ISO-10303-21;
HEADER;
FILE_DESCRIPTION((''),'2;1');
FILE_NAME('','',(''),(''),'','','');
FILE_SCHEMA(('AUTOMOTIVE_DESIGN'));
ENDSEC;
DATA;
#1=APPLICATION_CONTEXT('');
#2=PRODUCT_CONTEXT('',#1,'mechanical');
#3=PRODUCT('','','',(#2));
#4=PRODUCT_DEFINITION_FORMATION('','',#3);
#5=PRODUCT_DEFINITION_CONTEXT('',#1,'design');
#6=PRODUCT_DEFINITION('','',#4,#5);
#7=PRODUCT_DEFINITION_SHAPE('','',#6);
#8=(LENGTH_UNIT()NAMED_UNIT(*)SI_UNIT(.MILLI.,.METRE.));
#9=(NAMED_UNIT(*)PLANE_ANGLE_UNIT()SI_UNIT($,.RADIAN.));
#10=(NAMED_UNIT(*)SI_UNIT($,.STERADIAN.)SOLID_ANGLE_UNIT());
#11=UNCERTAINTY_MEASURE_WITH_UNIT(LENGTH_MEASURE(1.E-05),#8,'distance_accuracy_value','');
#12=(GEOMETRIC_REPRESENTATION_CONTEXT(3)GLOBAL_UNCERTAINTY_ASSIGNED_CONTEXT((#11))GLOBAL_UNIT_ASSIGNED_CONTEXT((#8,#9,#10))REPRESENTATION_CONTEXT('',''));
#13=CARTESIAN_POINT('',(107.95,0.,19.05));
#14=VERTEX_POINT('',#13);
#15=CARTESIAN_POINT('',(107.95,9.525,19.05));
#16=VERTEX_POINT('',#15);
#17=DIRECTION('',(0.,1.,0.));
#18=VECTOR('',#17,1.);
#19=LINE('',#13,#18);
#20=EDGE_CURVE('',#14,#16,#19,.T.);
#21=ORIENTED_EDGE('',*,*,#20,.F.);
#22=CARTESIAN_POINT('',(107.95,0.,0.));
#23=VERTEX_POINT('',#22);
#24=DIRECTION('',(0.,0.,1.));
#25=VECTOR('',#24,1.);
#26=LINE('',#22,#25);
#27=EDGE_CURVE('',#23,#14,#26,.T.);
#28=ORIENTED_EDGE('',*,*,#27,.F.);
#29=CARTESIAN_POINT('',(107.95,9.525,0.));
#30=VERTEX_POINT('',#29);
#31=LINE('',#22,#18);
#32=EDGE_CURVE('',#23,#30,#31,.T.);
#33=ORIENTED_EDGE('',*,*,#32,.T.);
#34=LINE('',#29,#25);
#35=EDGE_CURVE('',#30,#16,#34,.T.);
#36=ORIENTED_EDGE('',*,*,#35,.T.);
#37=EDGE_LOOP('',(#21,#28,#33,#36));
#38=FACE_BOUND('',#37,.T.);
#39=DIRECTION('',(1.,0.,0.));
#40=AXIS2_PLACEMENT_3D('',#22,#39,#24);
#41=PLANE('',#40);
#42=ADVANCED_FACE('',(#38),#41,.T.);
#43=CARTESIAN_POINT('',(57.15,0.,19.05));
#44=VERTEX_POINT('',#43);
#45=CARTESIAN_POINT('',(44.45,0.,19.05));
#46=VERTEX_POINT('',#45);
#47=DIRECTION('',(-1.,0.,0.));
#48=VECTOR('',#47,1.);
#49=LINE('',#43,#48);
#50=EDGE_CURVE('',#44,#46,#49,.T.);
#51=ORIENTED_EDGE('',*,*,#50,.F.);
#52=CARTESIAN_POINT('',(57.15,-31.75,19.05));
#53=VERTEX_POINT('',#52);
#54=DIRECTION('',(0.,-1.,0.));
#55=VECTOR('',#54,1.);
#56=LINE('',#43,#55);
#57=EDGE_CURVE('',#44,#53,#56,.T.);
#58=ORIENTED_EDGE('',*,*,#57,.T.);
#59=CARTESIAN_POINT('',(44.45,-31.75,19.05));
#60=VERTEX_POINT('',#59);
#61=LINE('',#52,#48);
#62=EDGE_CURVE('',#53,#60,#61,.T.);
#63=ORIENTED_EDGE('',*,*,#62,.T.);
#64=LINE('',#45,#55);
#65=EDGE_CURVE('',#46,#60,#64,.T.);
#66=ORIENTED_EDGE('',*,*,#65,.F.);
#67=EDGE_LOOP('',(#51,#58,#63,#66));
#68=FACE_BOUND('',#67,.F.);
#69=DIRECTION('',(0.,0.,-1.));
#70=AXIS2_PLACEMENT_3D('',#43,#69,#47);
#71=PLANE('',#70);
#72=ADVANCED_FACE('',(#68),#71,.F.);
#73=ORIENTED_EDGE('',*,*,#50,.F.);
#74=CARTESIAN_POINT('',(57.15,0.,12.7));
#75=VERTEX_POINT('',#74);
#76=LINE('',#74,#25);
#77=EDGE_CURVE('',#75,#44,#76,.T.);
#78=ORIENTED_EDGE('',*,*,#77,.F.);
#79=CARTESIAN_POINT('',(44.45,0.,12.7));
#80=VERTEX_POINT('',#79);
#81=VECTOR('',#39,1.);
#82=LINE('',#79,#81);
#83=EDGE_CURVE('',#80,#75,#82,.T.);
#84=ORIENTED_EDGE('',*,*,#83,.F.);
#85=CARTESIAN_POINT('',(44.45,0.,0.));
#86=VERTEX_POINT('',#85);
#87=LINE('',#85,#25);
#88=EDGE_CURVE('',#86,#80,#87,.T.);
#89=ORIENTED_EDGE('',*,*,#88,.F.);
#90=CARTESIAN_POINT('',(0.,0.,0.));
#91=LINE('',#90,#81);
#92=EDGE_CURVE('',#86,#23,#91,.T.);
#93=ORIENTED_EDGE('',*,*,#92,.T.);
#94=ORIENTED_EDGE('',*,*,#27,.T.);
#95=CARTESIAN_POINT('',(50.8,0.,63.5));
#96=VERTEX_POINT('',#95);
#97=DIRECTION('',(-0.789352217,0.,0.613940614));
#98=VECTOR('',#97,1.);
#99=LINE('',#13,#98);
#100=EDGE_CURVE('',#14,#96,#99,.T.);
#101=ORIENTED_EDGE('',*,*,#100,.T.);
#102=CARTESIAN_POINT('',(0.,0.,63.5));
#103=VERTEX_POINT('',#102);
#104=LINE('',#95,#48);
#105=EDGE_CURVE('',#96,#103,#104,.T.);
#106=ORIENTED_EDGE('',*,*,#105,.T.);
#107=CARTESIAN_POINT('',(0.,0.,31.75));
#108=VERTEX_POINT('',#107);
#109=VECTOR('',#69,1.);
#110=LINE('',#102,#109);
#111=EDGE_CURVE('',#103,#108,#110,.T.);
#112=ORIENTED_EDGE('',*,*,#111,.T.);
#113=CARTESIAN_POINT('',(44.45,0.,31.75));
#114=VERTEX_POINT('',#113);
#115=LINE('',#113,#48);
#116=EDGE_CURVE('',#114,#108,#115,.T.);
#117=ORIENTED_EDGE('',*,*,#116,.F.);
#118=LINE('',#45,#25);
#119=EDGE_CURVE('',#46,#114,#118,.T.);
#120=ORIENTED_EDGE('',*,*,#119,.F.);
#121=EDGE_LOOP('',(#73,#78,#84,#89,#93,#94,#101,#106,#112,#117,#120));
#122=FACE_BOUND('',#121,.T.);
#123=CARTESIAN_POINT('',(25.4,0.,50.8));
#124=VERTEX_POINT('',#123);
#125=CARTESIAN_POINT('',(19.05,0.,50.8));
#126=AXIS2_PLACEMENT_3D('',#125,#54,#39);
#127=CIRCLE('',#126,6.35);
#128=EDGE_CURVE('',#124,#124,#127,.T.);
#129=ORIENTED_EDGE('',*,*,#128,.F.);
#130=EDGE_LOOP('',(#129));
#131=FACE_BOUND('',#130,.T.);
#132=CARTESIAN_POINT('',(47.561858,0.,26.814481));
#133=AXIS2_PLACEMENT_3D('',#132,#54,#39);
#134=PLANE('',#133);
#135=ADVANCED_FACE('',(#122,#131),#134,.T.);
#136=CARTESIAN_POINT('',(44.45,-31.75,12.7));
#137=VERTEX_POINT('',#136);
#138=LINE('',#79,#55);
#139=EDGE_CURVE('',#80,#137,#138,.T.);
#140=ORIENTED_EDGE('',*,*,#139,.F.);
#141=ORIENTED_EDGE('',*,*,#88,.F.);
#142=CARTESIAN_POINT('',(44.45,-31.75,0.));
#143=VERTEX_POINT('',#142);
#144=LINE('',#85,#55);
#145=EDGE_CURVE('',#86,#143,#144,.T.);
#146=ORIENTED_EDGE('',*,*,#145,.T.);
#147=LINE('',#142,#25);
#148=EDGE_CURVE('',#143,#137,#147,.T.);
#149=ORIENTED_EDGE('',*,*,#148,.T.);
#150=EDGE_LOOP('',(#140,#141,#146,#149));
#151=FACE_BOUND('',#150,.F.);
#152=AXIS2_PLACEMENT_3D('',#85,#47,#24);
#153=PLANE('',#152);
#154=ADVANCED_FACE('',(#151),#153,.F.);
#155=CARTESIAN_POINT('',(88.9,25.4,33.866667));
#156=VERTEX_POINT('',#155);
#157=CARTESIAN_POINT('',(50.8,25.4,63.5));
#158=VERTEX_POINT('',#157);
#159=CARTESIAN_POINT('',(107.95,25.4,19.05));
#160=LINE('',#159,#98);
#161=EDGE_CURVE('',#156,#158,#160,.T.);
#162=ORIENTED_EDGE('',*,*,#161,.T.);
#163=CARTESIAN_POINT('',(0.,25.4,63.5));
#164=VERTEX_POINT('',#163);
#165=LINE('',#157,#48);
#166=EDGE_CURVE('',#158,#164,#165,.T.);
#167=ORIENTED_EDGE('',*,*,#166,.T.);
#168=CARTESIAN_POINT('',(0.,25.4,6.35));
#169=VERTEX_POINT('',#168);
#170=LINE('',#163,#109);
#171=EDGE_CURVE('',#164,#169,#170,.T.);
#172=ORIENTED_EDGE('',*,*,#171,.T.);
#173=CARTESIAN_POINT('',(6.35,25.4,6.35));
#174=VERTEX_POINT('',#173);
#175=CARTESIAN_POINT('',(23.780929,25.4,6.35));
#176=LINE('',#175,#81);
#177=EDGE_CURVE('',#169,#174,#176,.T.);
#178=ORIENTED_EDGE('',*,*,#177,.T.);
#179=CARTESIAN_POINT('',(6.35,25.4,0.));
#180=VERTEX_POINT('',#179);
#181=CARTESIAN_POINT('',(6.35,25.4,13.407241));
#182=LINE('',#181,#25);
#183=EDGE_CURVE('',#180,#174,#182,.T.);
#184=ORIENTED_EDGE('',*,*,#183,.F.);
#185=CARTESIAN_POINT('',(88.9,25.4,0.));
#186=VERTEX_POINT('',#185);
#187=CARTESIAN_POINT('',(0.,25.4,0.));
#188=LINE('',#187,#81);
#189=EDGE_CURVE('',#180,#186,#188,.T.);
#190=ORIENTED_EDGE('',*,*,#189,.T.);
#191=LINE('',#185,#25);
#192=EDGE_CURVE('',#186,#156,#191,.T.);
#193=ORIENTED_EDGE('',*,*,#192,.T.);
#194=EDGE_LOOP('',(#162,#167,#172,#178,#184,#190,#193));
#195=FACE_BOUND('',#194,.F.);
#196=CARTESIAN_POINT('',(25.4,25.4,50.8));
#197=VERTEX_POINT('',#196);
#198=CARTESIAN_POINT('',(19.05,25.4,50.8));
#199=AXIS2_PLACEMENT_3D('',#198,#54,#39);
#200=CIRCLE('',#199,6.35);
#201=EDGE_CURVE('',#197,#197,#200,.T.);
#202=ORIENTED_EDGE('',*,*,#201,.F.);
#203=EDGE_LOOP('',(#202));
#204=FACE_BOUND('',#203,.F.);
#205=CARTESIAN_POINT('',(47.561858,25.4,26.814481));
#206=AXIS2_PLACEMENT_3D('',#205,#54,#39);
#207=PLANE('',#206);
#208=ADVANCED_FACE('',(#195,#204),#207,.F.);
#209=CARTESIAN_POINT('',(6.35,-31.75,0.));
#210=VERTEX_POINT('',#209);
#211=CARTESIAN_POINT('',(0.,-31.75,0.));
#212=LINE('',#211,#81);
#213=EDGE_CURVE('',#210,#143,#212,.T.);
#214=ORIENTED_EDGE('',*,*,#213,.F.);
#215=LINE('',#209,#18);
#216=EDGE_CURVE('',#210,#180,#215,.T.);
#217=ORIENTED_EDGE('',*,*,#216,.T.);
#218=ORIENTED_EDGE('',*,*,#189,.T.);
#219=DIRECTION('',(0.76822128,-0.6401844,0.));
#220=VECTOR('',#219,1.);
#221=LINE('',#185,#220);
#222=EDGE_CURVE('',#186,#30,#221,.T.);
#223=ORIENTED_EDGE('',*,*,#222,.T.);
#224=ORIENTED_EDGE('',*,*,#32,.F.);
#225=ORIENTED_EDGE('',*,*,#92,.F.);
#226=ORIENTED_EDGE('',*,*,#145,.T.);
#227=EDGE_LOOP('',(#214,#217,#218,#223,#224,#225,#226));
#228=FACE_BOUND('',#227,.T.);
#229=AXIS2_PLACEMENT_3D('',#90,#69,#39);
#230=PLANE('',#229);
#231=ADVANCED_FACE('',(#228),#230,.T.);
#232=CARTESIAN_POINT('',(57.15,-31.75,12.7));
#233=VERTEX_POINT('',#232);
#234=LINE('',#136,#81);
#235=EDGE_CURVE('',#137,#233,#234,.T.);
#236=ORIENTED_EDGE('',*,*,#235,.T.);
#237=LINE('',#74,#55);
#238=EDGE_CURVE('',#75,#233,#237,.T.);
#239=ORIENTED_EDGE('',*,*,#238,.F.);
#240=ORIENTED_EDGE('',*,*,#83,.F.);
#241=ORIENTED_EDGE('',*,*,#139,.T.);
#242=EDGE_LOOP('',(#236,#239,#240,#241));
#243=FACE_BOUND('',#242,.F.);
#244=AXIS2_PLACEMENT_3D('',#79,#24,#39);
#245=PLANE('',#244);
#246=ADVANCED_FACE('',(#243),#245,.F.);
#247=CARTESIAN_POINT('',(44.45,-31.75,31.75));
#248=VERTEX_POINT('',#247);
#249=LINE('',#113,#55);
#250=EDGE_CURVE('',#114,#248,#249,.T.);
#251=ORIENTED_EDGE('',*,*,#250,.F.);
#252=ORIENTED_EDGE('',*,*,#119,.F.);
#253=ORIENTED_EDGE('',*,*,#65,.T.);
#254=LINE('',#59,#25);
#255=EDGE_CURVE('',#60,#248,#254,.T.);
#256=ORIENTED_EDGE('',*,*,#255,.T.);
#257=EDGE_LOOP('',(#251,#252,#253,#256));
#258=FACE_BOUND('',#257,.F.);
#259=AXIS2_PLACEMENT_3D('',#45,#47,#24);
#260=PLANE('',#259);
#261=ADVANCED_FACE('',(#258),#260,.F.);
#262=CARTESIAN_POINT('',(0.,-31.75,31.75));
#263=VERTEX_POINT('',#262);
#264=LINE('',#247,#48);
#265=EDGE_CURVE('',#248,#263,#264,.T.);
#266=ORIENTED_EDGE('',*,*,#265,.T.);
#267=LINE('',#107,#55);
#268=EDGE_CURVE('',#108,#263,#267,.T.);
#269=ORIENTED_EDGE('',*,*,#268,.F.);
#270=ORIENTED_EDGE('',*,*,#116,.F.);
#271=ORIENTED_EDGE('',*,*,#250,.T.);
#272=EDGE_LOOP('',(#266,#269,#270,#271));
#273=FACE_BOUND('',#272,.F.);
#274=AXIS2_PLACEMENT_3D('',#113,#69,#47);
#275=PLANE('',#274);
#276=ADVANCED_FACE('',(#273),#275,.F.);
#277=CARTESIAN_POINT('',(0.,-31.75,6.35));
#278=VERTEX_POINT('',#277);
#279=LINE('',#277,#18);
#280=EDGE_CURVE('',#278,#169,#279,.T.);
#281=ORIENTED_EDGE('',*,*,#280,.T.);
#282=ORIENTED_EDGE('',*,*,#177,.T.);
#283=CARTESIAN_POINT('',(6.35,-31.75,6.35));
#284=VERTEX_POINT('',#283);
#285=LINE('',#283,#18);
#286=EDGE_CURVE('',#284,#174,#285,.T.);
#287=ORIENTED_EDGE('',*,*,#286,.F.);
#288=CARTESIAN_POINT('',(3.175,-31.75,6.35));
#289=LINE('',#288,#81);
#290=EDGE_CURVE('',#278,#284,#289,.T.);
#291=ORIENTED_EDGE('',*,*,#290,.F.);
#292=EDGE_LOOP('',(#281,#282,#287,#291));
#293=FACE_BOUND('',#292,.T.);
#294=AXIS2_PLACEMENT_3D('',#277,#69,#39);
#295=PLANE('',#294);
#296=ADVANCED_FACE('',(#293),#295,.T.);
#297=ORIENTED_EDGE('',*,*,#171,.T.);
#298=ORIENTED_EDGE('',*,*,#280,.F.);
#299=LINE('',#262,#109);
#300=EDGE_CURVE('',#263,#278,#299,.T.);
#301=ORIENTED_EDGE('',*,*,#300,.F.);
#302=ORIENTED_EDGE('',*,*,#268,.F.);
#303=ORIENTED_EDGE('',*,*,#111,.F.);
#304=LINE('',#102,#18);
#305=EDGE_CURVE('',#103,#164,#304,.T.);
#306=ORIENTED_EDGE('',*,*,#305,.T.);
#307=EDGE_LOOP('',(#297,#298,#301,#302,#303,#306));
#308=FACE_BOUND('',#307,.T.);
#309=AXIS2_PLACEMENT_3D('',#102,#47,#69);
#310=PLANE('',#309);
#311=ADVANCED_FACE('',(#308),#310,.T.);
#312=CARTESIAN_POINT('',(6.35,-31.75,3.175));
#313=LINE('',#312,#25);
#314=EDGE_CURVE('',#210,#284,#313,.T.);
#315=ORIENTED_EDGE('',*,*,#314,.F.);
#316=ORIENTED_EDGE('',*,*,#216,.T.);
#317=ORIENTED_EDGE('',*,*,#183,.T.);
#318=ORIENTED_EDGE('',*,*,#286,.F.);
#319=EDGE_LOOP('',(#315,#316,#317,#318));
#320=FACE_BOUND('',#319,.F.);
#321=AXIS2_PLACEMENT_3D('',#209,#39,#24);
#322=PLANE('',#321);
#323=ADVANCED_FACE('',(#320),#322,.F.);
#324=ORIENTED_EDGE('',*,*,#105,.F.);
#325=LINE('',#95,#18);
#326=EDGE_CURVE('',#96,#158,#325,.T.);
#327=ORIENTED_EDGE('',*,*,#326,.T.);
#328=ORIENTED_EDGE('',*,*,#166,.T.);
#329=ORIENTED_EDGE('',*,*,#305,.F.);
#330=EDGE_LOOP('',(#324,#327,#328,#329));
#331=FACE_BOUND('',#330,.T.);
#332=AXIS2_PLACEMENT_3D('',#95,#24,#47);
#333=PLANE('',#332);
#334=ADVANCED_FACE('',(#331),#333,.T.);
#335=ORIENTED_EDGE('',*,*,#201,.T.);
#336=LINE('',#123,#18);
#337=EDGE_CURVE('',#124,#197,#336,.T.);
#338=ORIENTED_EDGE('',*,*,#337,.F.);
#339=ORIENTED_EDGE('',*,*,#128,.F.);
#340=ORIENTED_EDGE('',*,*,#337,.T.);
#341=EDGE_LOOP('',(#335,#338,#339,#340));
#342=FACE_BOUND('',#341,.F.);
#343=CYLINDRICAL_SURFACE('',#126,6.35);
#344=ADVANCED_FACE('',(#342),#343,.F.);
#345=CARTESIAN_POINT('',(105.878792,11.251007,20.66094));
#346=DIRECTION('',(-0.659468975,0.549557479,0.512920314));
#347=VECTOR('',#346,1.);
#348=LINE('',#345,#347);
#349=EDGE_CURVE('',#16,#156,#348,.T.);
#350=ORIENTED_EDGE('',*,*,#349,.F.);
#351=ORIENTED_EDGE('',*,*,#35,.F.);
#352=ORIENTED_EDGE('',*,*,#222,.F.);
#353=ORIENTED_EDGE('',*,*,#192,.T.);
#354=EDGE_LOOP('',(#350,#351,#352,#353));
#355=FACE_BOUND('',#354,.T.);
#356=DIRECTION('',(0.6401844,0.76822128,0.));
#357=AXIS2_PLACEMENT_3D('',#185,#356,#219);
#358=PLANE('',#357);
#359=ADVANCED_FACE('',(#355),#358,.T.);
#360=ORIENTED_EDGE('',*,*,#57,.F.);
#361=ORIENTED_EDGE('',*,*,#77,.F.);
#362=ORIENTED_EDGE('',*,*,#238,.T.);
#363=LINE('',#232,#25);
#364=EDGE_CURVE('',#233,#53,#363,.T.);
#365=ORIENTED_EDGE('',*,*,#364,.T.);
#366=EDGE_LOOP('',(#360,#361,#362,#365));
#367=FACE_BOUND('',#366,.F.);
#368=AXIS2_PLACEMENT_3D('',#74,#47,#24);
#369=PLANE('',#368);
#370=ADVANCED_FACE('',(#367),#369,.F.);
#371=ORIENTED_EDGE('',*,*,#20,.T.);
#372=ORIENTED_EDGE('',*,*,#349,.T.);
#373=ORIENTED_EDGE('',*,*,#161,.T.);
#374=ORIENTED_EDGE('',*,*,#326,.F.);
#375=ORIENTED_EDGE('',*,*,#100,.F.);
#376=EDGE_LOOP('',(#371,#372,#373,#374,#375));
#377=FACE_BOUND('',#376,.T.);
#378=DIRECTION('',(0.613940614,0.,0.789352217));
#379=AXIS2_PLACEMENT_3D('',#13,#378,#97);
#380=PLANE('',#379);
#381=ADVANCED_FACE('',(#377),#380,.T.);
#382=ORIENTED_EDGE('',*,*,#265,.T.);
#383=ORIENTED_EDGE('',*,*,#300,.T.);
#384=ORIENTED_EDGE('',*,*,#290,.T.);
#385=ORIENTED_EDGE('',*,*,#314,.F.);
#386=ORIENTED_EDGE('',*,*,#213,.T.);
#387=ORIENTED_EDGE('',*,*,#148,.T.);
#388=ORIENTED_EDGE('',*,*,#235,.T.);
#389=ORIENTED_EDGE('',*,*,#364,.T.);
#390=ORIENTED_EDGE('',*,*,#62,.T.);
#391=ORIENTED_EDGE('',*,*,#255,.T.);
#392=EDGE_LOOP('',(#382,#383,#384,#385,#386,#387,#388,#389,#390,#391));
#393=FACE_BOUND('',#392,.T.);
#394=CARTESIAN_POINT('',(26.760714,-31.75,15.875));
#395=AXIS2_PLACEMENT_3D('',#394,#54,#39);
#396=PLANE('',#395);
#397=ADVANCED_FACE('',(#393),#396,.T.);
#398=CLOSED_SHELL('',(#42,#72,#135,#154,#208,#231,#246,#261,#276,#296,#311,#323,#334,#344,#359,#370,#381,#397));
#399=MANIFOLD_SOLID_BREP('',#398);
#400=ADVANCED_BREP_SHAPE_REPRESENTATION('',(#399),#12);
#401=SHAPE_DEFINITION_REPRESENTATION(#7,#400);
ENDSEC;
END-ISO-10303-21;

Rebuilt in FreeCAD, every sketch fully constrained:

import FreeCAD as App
import Part
import Sketcher
Q = App.Units.Quantity


def add_polygon(sketch, points):
    """Adds a closed chain of lines whose ends are joined by coincident constraints."""
    first, n = sketch.GeometryCount, len(points)
    for a, b in zip(points, points[1:] + points[:1]):
        sketch.addGeometry(Part.LineSegment(App.Vector(*a, 0), App.Vector(*b, 0)), False)
    for i in range(n):
        sketch.addConstraint(Sketcher.Constraint("Coincident", first + i, 2, first + (i + 1) % n, 1))

doc = App.newDocument("Part")
body = doc.addObject("PartDesign::Body", "Body")

# Sketch on XZ plane
sketch1 = body.newObject("Sketcher::SketchObject", "Sketch")
sketch1.AttachmentSupport = (doc.getObject("XZ_Plane"), [""])
sketch1.MapMode = "FlatFace"
add_polygon(sketch1, [(0, 31.75), (0, 0), (44.45, 0), (44.45, 12.7), (57.15, 12.7), (57.15, 19.05), (44.45, 19.05), (44.45, 31.75)])  # lines 0-7
sketch1.addConstraint([
    Sketcher.Constraint("Vertical", 0),
    Sketcher.Constraint("Horizontal", 1),
    Sketcher.Constraint("Vertical", 2),
    Sketcher.Constraint("Horizontal", 3),
    Sketcher.Constraint("Vertical", 4),
    Sketcher.Constraint("Horizontal", 5),
    Sketcher.Constraint("Vertical", 6),
    Sketcher.Constraint("Horizontal", 7),
    Sketcher.Constraint("Coincident", 0, 2, -1, 1),
    Sketcher.Constraint("Vertical", 2, 2, 5, 2),
    Sketcher.Constraint("Equal", 5, 2),
    Sketcher.Constraint("Equal", 2, 6),
    Sketcher.Constraint("DistanceX", 3, 1, 3, 2, Q("0.5 in")),
    Sketcher.Constraint("DistanceX", 1, 1, 1, 2, Q("1.75 in")),
    Sketcher.Constraint("DistanceY", 0, 2, 0, 1, Q("1.25 in")),
])
pad1 = body.newObject("PartDesign::Pad", "Pad")
pad1.Profile = sketch1
pad1.Length = Q("1.25 in")

# Sketch on XZ plane
sketch2 = body.newObject("Sketcher::SketchObject", "Sketch001")
sketch2.AttachmentSupport = (doc.getObject("XZ_Plane"), [""])
sketch2.MapMode = "FlatFace"
add_polygon(sketch2, [(0, 63.5), (0, 0), (107.95, 0), (107.95, 19.05), (50.8, 63.5)])  # lines 0-4
sketch2.addGeometry(Part.Circle(App.Vector(19.05, 50.8, 0), App.Vector(0, 0, 1), 6.35), False)  # 5
sketch2.addConstraint([
    Sketcher.Constraint("Vertical", 0),
    Sketcher.Constraint("Horizontal", 1),
    Sketcher.Constraint("Vertical", 2),
    Sketcher.Constraint("Horizontal", 4),
    Sketcher.Constraint("Coincident", 0, 2, -1, 1),
    Sketcher.Constraint("Diameter", 5, Q("0.5 in")),
    Sketcher.Constraint("DistanceX", 4, 2, 4, 1, Q("2 in")),
    Sketcher.Constraint("DistanceY", 0, 2, 0, 1, Q("2.5 in")),
    Sketcher.Constraint("DistanceY", -1, 1, 5, 3, Q("2 in")),
    Sketcher.Constraint("DistanceX", 1, 1, 1, 2, Q("4.25 in")),
    Sketcher.Constraint("DistanceY", 2, 1, 2, 2, Q("0.75 in")),
    Sketcher.Constraint("DistanceX", 5, 3, 1, 2, Q("3.5 in")),
])
pad2 = body.newObject("PartDesign::Pad", "Pad001")
pad2.Profile = sketch2
pad2.Length = Q("1 in")
pad2.Reversed = True

# Sketch on XY plane
sketch3 = body.newObject("Sketcher::SketchObject", "Sketch002")
sketch3.AttachmentSupport = (doc.getObject("XY_Plane"), [""])
sketch3.MapMode = "FlatFace"
add_polygon(sketch3, [(107.95, 25.4), (88.9, 25.4), (107.95, 9.525)])  # lines 0-2
sketch3.addConstraint([
    Sketcher.Constraint("Horizontal", 0),
    Sketcher.Constraint("Vertical", 2),
    Sketcher.Constraint("DistanceY", -1, 1, 0, 2, Q("1 in")),
    Sketcher.Constraint("DistanceX", 0, 2, 0, 1, Q("0.75 in")),
    Sketcher.Constraint("DistanceX", -1, 1, 0, 2, Q("3.5 in")),
    Sketcher.Constraint("DistanceY", 2, 1, 2, 2, Q("0.625 in")),
])
pocket1 = body.newObject("PartDesign::Pocket", "Pocket")
pocket1.Profile = sketch3
pocket1.Type = "ThroughAll"
pocket1.Reversed = True

# Sketch on XZ plane
sketch4 = body.newObject("Sketcher::SketchObject", "Sketch003")
sketch4.AttachmentSupport = (doc.getObject("XZ_Plane"), [""])
sketch4.MapMode = "FlatFace"
sketch4.AttachmentOffset = App.Placement(App.Vector(0, 0, 1.25 * 25.4), App.Rotation())
add_polygon(sketch4, [(0, 6.35), (0, 0), (6.35, 0), (6.35, 6.35)])  # lines 0-3
sketch4.addConstraint([
    Sketcher.Constraint("Vertical", 0),
    Sketcher.Constraint("Horizontal", 1),
    Sketcher.Constraint("Vertical", 2),
    Sketcher.Constraint("Horizontal", 3),
    Sketcher.Constraint("Coincident", 0, 2, -1, 1),
    Sketcher.Constraint("Equal", 3, 0),
    Sketcher.Constraint("DistanceX", 1, 1, 1, 2, Q("0.25 in")),
])
pocket2 = body.newObject("PartDesign::Pocket", "Pocket001")
pocket2.Profile = sketch4
pocket2.Type = "ThroughAll"

doc.recompute()
